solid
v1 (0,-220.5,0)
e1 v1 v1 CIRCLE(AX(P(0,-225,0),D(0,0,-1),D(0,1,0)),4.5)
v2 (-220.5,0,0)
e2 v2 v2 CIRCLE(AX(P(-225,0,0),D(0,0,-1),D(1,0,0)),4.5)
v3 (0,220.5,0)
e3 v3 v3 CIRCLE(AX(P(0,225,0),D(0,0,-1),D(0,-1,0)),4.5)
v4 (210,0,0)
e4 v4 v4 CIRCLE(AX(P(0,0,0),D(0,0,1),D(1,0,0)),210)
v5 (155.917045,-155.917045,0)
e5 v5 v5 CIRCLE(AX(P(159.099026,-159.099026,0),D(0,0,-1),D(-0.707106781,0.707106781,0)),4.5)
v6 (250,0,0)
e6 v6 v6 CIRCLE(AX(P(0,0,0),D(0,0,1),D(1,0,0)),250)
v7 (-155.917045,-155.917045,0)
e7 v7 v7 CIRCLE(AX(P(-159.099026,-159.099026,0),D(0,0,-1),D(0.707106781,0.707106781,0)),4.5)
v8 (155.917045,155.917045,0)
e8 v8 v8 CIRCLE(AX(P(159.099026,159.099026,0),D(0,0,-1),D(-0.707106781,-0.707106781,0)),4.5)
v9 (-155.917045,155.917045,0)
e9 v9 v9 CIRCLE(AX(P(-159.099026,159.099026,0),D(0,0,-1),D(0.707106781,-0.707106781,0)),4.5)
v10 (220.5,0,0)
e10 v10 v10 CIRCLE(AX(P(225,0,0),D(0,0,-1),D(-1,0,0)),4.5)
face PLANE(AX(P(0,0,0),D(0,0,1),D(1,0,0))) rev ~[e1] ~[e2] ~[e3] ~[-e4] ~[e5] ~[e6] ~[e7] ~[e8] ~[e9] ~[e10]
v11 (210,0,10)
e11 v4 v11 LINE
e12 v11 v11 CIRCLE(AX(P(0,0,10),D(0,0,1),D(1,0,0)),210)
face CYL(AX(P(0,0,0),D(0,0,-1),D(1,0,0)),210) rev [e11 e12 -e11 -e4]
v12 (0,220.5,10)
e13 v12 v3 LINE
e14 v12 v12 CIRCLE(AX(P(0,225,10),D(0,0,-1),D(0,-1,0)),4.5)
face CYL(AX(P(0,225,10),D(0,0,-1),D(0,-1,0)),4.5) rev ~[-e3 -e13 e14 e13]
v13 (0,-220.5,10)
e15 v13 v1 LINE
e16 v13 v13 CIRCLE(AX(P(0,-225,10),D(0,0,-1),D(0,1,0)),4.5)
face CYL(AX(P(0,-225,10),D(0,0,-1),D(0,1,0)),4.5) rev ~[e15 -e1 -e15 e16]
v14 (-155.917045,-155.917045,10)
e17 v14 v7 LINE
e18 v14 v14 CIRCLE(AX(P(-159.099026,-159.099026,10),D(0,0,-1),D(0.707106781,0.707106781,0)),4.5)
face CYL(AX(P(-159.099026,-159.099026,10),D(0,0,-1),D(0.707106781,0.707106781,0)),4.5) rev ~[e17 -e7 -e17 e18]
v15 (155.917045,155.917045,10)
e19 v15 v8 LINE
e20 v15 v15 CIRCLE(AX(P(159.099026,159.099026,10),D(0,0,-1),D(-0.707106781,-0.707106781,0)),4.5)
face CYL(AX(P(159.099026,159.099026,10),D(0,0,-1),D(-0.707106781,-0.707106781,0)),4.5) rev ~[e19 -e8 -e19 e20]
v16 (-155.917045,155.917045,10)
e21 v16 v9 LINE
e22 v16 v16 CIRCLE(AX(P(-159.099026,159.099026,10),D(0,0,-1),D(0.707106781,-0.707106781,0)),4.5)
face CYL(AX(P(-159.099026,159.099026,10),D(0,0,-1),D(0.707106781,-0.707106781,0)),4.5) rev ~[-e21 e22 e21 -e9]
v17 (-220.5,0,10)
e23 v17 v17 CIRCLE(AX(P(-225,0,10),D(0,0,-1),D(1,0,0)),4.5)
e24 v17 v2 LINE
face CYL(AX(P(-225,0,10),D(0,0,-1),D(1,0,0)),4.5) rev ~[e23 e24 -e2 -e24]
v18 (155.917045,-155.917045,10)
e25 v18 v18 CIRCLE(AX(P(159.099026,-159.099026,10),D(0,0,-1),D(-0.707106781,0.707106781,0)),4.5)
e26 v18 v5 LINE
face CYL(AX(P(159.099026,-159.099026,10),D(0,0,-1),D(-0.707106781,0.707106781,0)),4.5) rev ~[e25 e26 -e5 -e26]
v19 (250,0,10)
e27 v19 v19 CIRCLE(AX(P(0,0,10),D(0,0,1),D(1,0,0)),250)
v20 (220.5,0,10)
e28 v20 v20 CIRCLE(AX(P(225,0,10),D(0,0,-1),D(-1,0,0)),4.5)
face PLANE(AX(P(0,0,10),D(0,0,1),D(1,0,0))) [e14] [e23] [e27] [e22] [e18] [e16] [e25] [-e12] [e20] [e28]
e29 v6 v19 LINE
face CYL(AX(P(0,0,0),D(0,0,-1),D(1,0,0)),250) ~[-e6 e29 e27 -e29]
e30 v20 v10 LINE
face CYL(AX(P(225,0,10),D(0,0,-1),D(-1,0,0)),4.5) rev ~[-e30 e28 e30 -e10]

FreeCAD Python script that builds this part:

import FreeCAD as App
import Part
import Sketcher
Q = App.Units.Quantity

doc = App.newDocument("Part")
body = doc.addObject("PartDesign::Body", "Body")

sketch1 = doc.addObject("Sketcher::SketchObject", "Sketch")
body.addObject(sketch1)
sketch1.AttachmentSupport = (doc.XY_Plane, [""])
sketch1.MapMode = "FlatFace"
sketch1.addGeometry([
    Part.Circle(App.Vector(0, 0, 0), App.Vector(0, 0, 1), 250),
    Part.Circle(App.Vector(0, 0, 0), App.Vector(0, 0, 1), 210),
], False)
sketch1.addConstraint([
    Sketcher.Constraint("Coincident", 0, 3, -1, 1),
    Sketcher.Constraint("Coincident", 1, 3, -1, 1),
    Sketcher.Constraint("Diameter", 0, Q("500 mm")),
    Sketcher.Constraint("Diameter", 1, Q("420 mm")),
])
pad1 = doc.addObject("PartDesign::Pad", "Pad")
body.addObject(pad1)
pad1.Profile = sketch1
pad1.Length = 10

sketch2 = doc.addObject("Sketcher::SketchObject", "Sketch001")
body.addObject(sketch2)
sketch2.AttachmentSupport = (doc.XY_Plane, [""])
sketch2.MapMode = "FlatFace"
sketch2.AttachmentOffset = App.Placement(App.Vector(0, 0, 10), App.Rotation())
sketch2.addGeometry(Part.Circle(App.Vector(0, 225, 0), App.Vector(0, 0, 1), 4.5), False)
sketch2.addConstraint([
    Sketcher.Constraint("PointOnObject", 0, 3, -2),
    Sketcher.Constraint("Diameter", 0, Q("9 mm")),
    Sketcher.Constraint("DistanceY", -1, 1, 0, 3, Q("225 mm")),
])
doc.recompute()
hole = doc.addObject("PartDesign::Hole", "Hole")
body.addObject(hole)
hole.Profile = sketch2
hole.ThreadType = "None"
hole.Diameter = 9
hole.DepthType = "ThroughAll"
doc.recompute()

polarpattern = doc.addObject("PartDesign::PolarPattern", "PolarPattern")
body.addObject(polarpattern)
polarpattern.Originals = [hole]
polarpattern.Axis = (doc.Z_Axis, [""])
polarpattern.Angle = 360
polarpattern.Occurrences = 8
body.Tip = polarpattern

doc.recompute()
